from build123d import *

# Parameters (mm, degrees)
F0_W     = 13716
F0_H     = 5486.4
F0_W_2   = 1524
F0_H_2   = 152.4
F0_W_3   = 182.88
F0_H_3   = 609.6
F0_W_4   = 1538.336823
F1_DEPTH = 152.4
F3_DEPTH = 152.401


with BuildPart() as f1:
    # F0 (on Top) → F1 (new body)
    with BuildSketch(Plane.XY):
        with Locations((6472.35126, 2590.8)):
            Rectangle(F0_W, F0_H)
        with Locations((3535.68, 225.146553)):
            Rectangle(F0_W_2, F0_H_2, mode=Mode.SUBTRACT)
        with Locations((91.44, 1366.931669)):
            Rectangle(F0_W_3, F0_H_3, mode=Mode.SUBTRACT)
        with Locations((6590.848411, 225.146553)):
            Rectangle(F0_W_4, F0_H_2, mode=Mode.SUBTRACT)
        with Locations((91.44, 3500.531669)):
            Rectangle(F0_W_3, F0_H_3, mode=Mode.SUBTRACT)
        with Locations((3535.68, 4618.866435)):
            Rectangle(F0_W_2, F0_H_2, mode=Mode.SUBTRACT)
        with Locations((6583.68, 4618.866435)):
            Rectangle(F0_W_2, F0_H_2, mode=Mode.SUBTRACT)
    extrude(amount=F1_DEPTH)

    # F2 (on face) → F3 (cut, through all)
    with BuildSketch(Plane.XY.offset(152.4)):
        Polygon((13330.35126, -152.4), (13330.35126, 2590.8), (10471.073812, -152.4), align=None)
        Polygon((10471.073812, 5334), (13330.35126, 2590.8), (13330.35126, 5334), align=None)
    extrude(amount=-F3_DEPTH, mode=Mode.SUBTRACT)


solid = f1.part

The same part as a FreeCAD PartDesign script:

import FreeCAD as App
import Part
import Sketcher

V = App.Vector
Q = App.Units.Quantity

doc = App.newDocument("Part")
body = doc.addObject("PartDesign::Body", "Body")

sketch1 = body.newObject("Sketcher::SketchObject", "Sketch")
sketch1.AttachmentSupport = (doc.getObject("XY_Plane"), [""])
sketch1.MapMode = "FlatFace"
sketch1.addGeometry(Part.LineSegment(V(-386, 5334, 0), V(-386, -152, 0)), False)
sketch1.addGeometry(Part.LineSegment(V(-386, -152, 0), V(13330, -152, 0)), False)
sketch1.addGeometry(Part.LineSegment(V(13330, -152, 0), V(13330, 5334, 0)), False)
sketch1.addGeometry(Part.LineSegment(V(13330, 5334, 0), V(-386, 5334, 0)), False)
sketch1.addGeometry(Part.LineSegment(V(4298, 149, 0), V(2774, 149, 0)), False)
sketch1.addGeometry(Part.LineSegment(V(2774, 149, 0), V(2774, 301, 0)), False)
sketch1.addGeometry(Part.LineSegment(V(2774, 301, 0), V(4298, 301, 0)), False)
sketch1.addGeometry(Part.LineSegment(V(4298, 301, 0), V(4298, 149, 0)), False)
sketch1.addGeometry(Part.LineSegment(V(183, 1062, 0), V(0, 1062, 0)), False)
sketch1.addGeometry(Part.LineSegment(V(0, 1062, 0), V(0, 1672, 0)), False)
sketch1.addGeometry(Part.LineSegment(V(0, 1672, 0), V(183, 1672, 0)), False)
sketch1.addGeometry(Part.LineSegment(V(183, 1672, 0), V(183, 1062, 0)), False)
sketch1.addGeometry(Part.LineSegment(V(7360, 149, 0), V(5822, 149, 0)), False)
sketch1.addGeometry(Part.LineSegment(V(5822, 149, 0), V(5822, 301, 0)), False)
sketch1.addGeometry(Part.LineSegment(V(5822, 301, 0), V(7360, 301, 0)), False)
sketch1.addGeometry(Part.LineSegment(V(7360, 301, 0), V(7360, 149, 0)), False)
sketch1.addGeometry(Part.LineSegment(V(183, 3196, 0), V(0, 3196, 0)), False)
sketch1.addGeometry(Part.LineSegment(V(0, 3196, 0), V(0, 3805, 0)), False)
sketch1.addGeometry(Part.LineSegment(V(0, 3805, 0), V(183, 3805, 0)), False)
sketch1.addGeometry(Part.LineSegment(V(183, 3805, 0), V(183, 3196, 0)), False)
sketch1.addGeometry(Part.LineSegment(V(4298, 4543, 0), V(2774, 4543, 0)), False)
sketch1.addGeometry(Part.LineSegment(V(2774, 4543, 0), V(2774, 4695, 0)), False)
sketch1.addGeometry(Part.LineSegment(V(2774, 4695, 0), V(4298, 4695, 0)), False)
sketch1.addGeometry(Part.LineSegment(V(4298, 4695, 0), V(4298, 4543, 0)), False)
sketch1.addGeometry(Part.LineSegment(V(7346, 4543, 0), V(5822, 4543, 0)), False)
sketch1.addGeometry(Part.LineSegment(V(5822, 4543, 0), V(5822, 4695, 0)), False)
sketch1.addGeometry(Part.LineSegment(V(5822, 4695, 0), V(7346, 4695, 0)), False)
sketch1.addGeometry(Part.LineSegment(V(7346, 4695, 0), V(7346, 4543, 0)), False)
sketch1.addConstraint(Sketcher.Constraint("Coincident", 0, 2, 1, 1))
sketch1.addConstraint(Sketcher.Constraint("Coincident", 1, 2, 2, 1))
sketch1.addConstraint(Sketcher.Constraint("Coincident", 2, 2, 3, 1))
sketch1.addConstraint(Sketcher.Constraint("Coincident", 3, 2, 0, 1))
sketch1.addConstraint(Sketcher.Constraint("Coincident", 4, 2, 5, 1))
sketch1.addConstraint(Sketcher.Constraint("Coincident", 5, 2, 6, 1))
sketch1.addConstraint(Sketcher.Constraint("Coincident", 6, 2, 7, 1))
sketch1.addConstraint(Sketcher.Constraint("Coincident", 7, 2, 4, 1))
sketch1.addConstraint(Sketcher.Constraint("Coincident", 8, 2, 9, 1))
sketch1.addConstraint(Sketcher.Constraint("Coincident", 9, 2, 10, 1))
sketch1.addConstraint(Sketcher.Constraint("Coincident", 10, 2, 11, 1))
sketch1.addConstraint(Sketcher.Constraint("Coincident", 11, 2, 8, 1))
sketch1.addConstraint(Sketcher.Constraint("Coincident", 12, 2, 13, 1))
sketch1.addConstraint(Sketcher.Constraint("Coincident", 13, 2, 14, 1))
sketch1.addConstraint(Sketcher.Constraint("Coincident", 14, 2, 15, 1))
sketch1.addConstraint(Sketcher.Constraint("Coincident", 15, 2, 12, 1))
sketch1.addConstraint(Sketcher.Constraint("Coincident", 16, 2, 17, 1))
sketch1.addConstraint(Sketcher.Constraint("Coincident", 17, 2, 18, 1))
sketch1.addConstraint(Sketcher.Constraint("Coincident", 18, 2, 19, 1))
sketch1.addConstraint(Sketcher.Constraint("Coincident", 19, 2, 16, 1))
sketch1.addConstraint(Sketcher.Constraint("Coincident", 20, 2, 21, 1))
sketch1.addConstraint(Sketcher.Constraint("Coincident", 21, 2, 22, 1))
sketch1.addConstraint(Sketcher.Constraint("Coincident", 22, 2, 23, 1))
sketch1.addConstraint(Sketcher.Constraint("Coincident", 23, 2, 20, 1))
sketch1.addConstraint(Sketcher.Constraint("Coincident", 24, 2, 25, 1))
sketch1.addConstraint(Sketcher.Constraint("Coincident", 25, 2, 26, 1))
sketch1.addConstraint(Sketcher.Constraint("Coincident", 26, 2, 27, 1))
sketch1.addConstraint(Sketcher.Constraint("Coincident", 27, 2, 24, 1))
sketch1.addConstraint(Sketcher.Constraint("Vertical", 0))
sketch1.addConstraint(Sketcher.Constraint("Horizontal", 1))
sketch1.addConstraint(Sketcher.Constraint("Vertical", 2))
sketch1.addConstraint(Sketcher.Constraint("Horizontal", 3))
sketch1.addConstraint(Sketcher.Constraint("Horizontal", 4))
sketch1.addConstraint(Sketcher.Constraint("Vertical", 5))
sketch1.addConstraint(Sketcher.Constraint("Horizontal", 6))
sketch1.addConstraint(Sketcher.Constraint("Vertical", 7))
sketch1.addConstraint(Sketcher.Constraint("Horizontal", 8))
sketch1.addConstraint(Sketcher.Constraint("Vertical", 9))
sketch1.addConstraint(Sketcher.Constraint("Horizontal", 10))
sketch1.addConstraint(Sketcher.Constraint("Vertical", 11))
sketch1.addConstraint(Sketcher.Constraint("Horizontal", 12))
sketch1.addConstraint(Sketcher.Constraint("Vertical", 13))
sketch1.addConstraint(Sketcher.Constraint("Horizontal", 14))
sketch1.addConstraint(Sketcher.Constraint("Vertical", 15))
sketch1.addConstraint(Sketcher.Constraint("Horizontal", 16))
sketch1.addConstraint(Sketcher.Constraint("Vertical", 17))
sketch1.addConstraint(Sketcher.Constraint("Horizontal", 18))
sketch1.addConstraint(Sketcher.Constraint("Vertical", 19))
sketch1.addConstraint(Sketcher.Constraint("Horizontal", 20))
sketch1.addConstraint(Sketcher.Constraint("Vertical", 21))
sketch1.addConstraint(Sketcher.Constraint("Horizontal", 22))
sketch1.addConstraint(Sketcher.Constraint("Vertical", 23))
sketch1.addConstraint(Sketcher.Constraint("Horizontal", 24))
sketch1.addConstraint(Sketcher.Constraint("Vertical", 25))
sketch1.addConstraint(Sketcher.Constraint("Horizontal", 26))
sketch1.addConstraint(Sketcher.Constraint("Vertical", 27))
sketch1.addConstraint(Sketcher.Constraint("PointOnObject", 8, 2, -2))
sketch1.addConstraint(Sketcher.Constraint("PointOnObject", 16, 2, -2))
sketch1.addConstraint(Sketcher.Constraint("Horizontal", 7, 2, 12, 2))
sketch1.addConstraint(Sketcher.Constraint("Horizontal", 6, 2, 13, 2))
sketch1.addConstraint(Sketcher.Constraint("Horizontal", 23, 2, 24, 2))
sketch1.addConstraint(Sketcher.Constraint("Horizontal", 22, 2, 25, 2))
sketch1.addConstraint(Sketcher.Constraint("Vertical", 11, 2, 18, 2))
sketch1.addConstraint(Sketcher.Constraint("Vertical", 5, 2, 20, 2))
sketch1.addConstraint(Sketcher.Constraint("Vertical", 7, 2, 22, 2))
sketch1.addConstraint(Sketcher.Constraint("Vertical", 13, 2, 24, 2))
sketch1.addConstraint(Sketcher.Constraint("Equal", 22, 24))
sketch1.addConstraint(Sketcher.Constraint("Equal", 11, 17))
sketch1.addConstraint(Sketcher.Constraint("Equal", 15, 21))
sketch1.addConstraint(Sketcher.Constraint("DistanceX", 1, 1, 1, 2, Q("540 in")))
sketch1.addConstraint(Sketcher.Constraint("DistanceX", 4, 2, 4, 1, Q("60 in")))
sketch1.addConstraint(Sketcher.Constraint("DistanceY", 0, 2, 0, 1, Q("216 in")))
sketch1.addConstraint(Sketcher.Constraint("DistanceY", 5, 1, 5, 2, Q("6 in")))
sketch1.addConstraint(Sketcher.Constraint("DistanceY", 9, 1, 9, 2, Q("24 in")))
sketch1.addConstraint(Sketcher.Constraint("DistanceX", 8, 2, 8, 1, Q("7.2 in")))
sketch1.addConstraint(Sketcher.Constraint("DistanceY", 0, 2, -1, 1, Q("6 in")))
sketch1.addConstraint(Sketcher.Constraint("DistanceX", 10, 2, 5, 2, Q("102 in")))
sketch1.addConstraint(Sketcher.Constraint("DistanceX", 7, 2, 12, 2, Q("60 in")))
sketch1.addConstraint(Sketcher.Constraint("DistanceY", 9, 2, 16, 2, Q("60 in")))
sketch1.addConstraint(Sketcher.Constraint("DistanceX", 12, 2, 12, 1, Q("1538.336823 mm")))
sketch1.addConstraint(Sketcher.Constraint("DistanceX", 0, 2, -1, 1, Q("385.64874 mm")))
sketch1.addConstraint(Sketcher.Constraint("DistanceY", -1, 1, 8, 2, Q("1062.131669 mm")))
sketch1.addConstraint(Sketcher.Constraint("DistanceY", 6, 2, 23, 2, Q("4241.319882 mm")))
sketch1.addConstraint(Sketcher.Constraint("DistanceY", -1, 1, 4, 2, Q("148.946553 mm")))
pad1 = body.newObject("PartDesign::Pad", "Pad")
pad1.Profile = sketch1
pad1.Length = Q("6 in")

sketch2 = body.newObject("Sketcher::SketchObject", "Sketch001")
sketch2.AttachmentSupport = (doc.getObject("XY_Plane"), [""])
sketch2.MapMode = "FlatFace"
sketch2.AttachmentOffset = App.Placement(V(0, 0, 6 * 25.4), App.Rotation())
sketch2.addGeometry(Part.LineSegment(V(13330, -152, 0), V(13330, 2591, 0)), False)
sketch2.addGeometry(Part.LineSegment(V(13330, 2591, 0), V(10471, -152, 0)), False)
sketch2.addGeometry(Part.LineSegment(V(10471, -152, 0), V(13330, -152, 0)), False)
sketch2.addGeometry(Part.LineSegment(V(10471, 5334, 0), V(13330, 2591, 0)), False)
sketch2.addGeometry(Part.LineSegment(V(13330, 2591, 0), V(13330, 5334, 0)), False)
sketch2.addGeometry(Part.LineSegment(V(13330, 5334, 0), V(10471, 5334, 0)), False)
sketch2.addConstraint(Sketcher.Constraint("Coincident", 0, 2, 1, 1))
sketch2.addConstraint(Sketcher.Constraint("Coincident", 1, 2, 2, 1))
sketch2.addConstraint(Sketcher.Constraint("Coincident", 2, 2, 0, 1))
sketch2.addConstraint(Sketcher.Constraint("Coincident", 3, 2, 4, 1))
sketch2.addConstraint(Sketcher.Constraint("Coincident", 4, 2, 5, 1))
sketch2.addConstraint(Sketcher.Constraint("Coincident", 5, 2, 3, 1))
sketch2.addConstraint(Sketcher.Constraint("Vertical", 0))
sketch2.addConstraint(Sketcher.Constraint("Horizontal", 2))
sketch2.addConstraint(Sketcher.Constraint("Vertical", 4))
sketch2.addConstraint(Sketcher.Constraint("Horizontal", 5))
sketch2.addConstraint(Sketcher.Constraint("Coincident", 3, 2, 0, 2))
sketch2.addConstraint(Sketcher.Constraint("Vertical", 1, 2, 5, 2))
sketch2.addConstraint(Sketcher.Constraint("Equal", 0, 4))
sketch2.addConstraint(Sketcher.Constraint("DistanceY", 0, 1, 0, 2, Q("108 in")))
sketch2.addConstraint(Sketcher.Constraint("Distance", 1, Q("156 in")))
sketch2.addConstraint(Sketcher.Constraint("DistanceY", -1, 1, 0, 2, Q("102 in")))
sketch2.addConstraint(Sketcher.Constraint("DistanceX", -1, 1, 0, 2, Q("13330.35126 mm")))
pocket1 = body.newObject("PartDesign::Pocket", "Pocket")
pocket1.Profile = sketch2
pocket1.Type = "ThroughAll"

doc.recompute()
